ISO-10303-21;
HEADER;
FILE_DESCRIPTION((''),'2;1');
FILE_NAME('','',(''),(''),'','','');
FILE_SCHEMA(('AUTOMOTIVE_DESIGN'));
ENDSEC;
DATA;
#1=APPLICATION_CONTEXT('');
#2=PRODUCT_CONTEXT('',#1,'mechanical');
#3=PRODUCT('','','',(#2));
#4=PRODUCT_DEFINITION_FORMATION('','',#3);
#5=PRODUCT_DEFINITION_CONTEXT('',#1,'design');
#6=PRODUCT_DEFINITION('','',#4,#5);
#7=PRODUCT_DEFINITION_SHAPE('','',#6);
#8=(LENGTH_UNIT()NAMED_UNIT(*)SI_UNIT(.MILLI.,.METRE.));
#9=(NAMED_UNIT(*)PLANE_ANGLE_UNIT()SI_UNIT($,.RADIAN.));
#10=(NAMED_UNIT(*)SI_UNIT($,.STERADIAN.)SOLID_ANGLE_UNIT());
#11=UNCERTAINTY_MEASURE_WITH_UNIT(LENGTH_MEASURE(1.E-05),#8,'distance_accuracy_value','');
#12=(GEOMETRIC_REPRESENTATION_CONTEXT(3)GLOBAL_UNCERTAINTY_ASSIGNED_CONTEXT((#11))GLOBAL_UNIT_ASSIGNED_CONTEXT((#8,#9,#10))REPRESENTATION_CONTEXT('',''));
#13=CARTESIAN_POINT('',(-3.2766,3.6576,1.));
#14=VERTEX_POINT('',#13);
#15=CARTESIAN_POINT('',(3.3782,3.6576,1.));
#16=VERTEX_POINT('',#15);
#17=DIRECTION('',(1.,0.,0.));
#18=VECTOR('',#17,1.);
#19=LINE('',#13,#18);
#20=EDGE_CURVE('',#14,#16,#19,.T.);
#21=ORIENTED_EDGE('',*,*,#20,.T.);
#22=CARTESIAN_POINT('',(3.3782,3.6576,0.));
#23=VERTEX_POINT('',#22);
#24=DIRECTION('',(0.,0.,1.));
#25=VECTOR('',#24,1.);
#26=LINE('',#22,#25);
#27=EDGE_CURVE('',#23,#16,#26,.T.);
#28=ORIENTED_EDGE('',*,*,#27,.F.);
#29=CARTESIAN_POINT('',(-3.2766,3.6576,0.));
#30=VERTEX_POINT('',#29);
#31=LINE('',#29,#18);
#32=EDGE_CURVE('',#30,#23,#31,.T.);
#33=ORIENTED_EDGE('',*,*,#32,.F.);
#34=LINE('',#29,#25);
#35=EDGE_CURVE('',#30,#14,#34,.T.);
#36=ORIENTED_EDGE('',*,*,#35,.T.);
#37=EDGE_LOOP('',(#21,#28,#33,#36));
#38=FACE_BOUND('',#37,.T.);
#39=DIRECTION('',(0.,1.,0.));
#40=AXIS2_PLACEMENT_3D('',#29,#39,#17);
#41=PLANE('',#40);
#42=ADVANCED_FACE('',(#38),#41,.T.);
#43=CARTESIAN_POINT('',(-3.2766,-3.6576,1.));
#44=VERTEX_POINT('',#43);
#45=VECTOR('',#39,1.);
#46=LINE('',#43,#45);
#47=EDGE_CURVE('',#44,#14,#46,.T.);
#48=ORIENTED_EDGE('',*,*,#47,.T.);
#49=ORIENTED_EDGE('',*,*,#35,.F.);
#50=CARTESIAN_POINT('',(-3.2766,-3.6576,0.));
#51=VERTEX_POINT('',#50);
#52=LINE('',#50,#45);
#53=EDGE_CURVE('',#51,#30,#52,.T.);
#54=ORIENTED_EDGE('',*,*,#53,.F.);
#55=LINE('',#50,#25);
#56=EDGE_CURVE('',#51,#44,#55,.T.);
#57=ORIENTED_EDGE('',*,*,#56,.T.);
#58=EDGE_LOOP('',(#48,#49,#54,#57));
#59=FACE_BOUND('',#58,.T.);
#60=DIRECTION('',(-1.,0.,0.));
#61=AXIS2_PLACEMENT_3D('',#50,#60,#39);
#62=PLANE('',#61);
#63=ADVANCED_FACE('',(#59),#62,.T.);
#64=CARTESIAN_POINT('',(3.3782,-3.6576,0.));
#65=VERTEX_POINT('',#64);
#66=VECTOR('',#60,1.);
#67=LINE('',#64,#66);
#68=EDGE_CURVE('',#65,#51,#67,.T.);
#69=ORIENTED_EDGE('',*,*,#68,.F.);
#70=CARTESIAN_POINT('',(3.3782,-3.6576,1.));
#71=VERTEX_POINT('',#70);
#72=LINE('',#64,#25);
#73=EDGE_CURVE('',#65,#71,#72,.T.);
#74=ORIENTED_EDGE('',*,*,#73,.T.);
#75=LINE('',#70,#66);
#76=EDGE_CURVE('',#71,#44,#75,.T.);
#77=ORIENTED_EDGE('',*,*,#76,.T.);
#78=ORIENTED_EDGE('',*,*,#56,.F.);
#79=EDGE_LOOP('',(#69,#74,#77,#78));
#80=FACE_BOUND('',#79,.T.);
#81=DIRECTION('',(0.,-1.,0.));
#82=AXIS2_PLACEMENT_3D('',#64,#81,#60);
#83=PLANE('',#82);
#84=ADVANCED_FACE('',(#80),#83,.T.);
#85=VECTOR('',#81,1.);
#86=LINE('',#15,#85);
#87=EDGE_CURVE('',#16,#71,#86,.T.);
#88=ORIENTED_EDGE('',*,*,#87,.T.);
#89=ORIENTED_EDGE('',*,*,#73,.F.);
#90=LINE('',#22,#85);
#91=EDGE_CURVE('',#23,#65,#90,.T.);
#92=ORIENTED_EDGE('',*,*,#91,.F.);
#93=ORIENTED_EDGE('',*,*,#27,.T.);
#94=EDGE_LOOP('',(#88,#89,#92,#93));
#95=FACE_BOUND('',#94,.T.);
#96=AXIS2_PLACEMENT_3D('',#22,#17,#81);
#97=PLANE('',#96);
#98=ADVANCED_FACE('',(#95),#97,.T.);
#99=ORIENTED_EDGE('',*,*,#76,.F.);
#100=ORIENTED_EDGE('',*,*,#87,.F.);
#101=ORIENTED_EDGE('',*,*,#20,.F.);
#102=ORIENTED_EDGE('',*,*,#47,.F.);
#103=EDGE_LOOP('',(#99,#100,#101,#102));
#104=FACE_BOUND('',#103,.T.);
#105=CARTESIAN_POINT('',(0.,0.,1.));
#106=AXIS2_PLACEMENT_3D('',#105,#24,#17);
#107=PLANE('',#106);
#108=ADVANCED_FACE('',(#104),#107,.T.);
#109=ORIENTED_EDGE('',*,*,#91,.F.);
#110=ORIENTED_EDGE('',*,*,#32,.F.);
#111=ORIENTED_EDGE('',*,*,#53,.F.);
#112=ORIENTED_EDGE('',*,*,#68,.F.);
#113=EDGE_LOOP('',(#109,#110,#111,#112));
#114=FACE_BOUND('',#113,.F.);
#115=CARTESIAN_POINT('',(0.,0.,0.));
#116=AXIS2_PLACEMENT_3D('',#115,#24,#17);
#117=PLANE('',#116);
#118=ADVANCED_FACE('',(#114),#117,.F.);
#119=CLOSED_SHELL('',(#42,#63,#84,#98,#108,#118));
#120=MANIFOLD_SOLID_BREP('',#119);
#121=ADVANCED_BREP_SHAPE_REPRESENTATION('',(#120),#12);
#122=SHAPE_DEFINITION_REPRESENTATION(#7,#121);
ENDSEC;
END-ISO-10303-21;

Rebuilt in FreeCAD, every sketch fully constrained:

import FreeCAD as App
import Part
import Sketcher

V = App.Vector
Q = App.Units.Quantity


def add_polygon(sketch, points):
    """Adds a closed chain of lines whose ends are joined by coincident constraints."""
    first, n = sketch.GeometryCount, len(points)
    for a, b in zip(points, points[1:] + points[:1]):
        sketch.addGeometry(Part.LineSegment(App.Vector(*a, 0), App.Vector(*b, 0)), False)
    for i in range(n):
        sketch.addConstraint(Sketcher.Constraint("Coincident", first + i, 2, first + (i + 1) % n, 1))

doc = App.newDocument("Part")
params = doc.addObject("Spreadsheet::Sheet", "Params")
for row, (alias, value) in enumerate([
    ("sketch1_width", "0.262 in"),
    ("sketch1_height", "0.288 in"),
    ("pad1_length", "1 mm"),
], start=1):
    params.set(f"A{row}", alias)
    params.set(f"B{row}", "=" + value)
    params.setAlias(f"B{row}", alias)

body = doc.addObject("PartDesign::Body", "Body")

# Sketch on XY plane
sketch1 = body.newObject("Sketcher::SketchObject", "Sketch")
sketch1.AttachmentSupport = (doc.getObject("XY_Plane"), [""])
sketch1.MapMode = "FlatFace"
add_polygon(sketch1, [(3, 4), (-3, 4), (-3, -4), (3, -4)])  # lines 0-3
sketch1.addConstraint([
    Sketcher.Constraint("Horizontal", 0),
    Sketcher.Constraint("Vertical", 1),
    Sketcher.Constraint("Horizontal", 2),
    Sketcher.Constraint("Vertical", 3),
    Sketcher.Constraint("DistanceX", 0, 2, 0, 1, Q("0.262 in")),
    Sketcher.Constraint("DistanceY", 1, 2, 1, 1, Q("0.288 in")),
    Sketcher.Constraint("DistanceX", 0, 2, -1, 1, Q("0.129 in")),
    Sketcher.Constraint("DistanceY", -1, 1, 0, 2, Q("0.144 in")),
])
sketch1.setExpression("Constraints[8]", "Params.sketch1_width")
sketch1.setExpression("Constraints[9]", "Params.sketch1_height")
pad1 = body.newObject("PartDesign::Pad", "Pad")
pad1.Profile = sketch1
pad1.setExpression("Length", "Params.pad1_length")

doc.recompute()
